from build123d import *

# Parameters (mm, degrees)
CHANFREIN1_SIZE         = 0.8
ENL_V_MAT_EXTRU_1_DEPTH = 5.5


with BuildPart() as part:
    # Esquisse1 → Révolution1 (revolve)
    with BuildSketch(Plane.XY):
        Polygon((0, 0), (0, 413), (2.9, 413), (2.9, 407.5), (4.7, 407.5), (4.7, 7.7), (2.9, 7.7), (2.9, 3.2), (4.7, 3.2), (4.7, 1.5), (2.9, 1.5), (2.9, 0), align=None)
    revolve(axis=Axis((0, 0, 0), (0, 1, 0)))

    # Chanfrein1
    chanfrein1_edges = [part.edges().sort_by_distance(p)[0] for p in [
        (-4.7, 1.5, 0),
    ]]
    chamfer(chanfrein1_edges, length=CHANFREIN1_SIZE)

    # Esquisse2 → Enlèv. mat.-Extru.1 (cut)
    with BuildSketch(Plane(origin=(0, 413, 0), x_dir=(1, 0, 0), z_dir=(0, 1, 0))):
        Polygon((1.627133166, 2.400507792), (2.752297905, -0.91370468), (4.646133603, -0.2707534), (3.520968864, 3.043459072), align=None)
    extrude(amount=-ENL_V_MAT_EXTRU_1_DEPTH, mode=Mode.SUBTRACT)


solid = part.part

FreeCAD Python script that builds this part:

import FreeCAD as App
import Part
import Sketcher

V = App.Vector
Q = App.Units.Quantity


def edges_at(feature, points):
    """Names of the edges that pass closest to the given points."""
    edges = feature.Shape.Edges
    near = lambda p: min(range(len(edges)), key=lambda i: edges[i].distToShape(Part.Vertex(*p))[0])
    return sorted({f"Edge{near(p) + 1}" for p in points})


def add_polygon(sketch, points):
    """Adds a closed chain of lines whose ends are joined by coincident constraints."""
    first, n = sketch.GeometryCount, len(points)
    for a, b in zip(points, points[1:] + points[:1]):
        sketch.addGeometry(Part.LineSegment(App.Vector(*a, 0), App.Vector(*b, 0)), False)
    for i in range(n):
        sketch.addConstraint(Sketcher.Constraint("Coincident", first + i, 2, first + (i + 1) % n, 1))

doc = App.newDocument("Part")
body = doc.addObject("PartDesign::Body", "Body")

sketch1 = body.newObject("Sketcher::SketchObject", "Sketch")
sketch1.AttachmentSupport = (doc.getObject("XY_Plane"), [""])
sketch1.MapMode = "FlatFace"
add_polygon(sketch1, [(0, 413), (0, 0), (2.9, 0), (2.9, 1.5), (4.7, 1.5), (4.7, 3.2), (2.9, 3.2), (2.9, 7.7), (4.7, 7.7), (4.7, 407.5), (2.9, 407.5), (2.9, 413)])
sketch1.addConstraint(Sketcher.Constraint("Vertical", 0))
sketch1.addConstraint(Sketcher.Constraint("Horizontal", 1))
sketch1.addConstraint(Sketcher.Constraint("Vertical", 2))
sketch1.addConstraint(Sketcher.Constraint("Horizontal", 3))
sketch1.addConstraint(Sketcher.Constraint("Vertical", 4))
sketch1.addConstraint(Sketcher.Constraint("Horizontal", 5))
sketch1.addConstraint(Sketcher.Constraint("Vertical", 6))
sketch1.addConstraint(Sketcher.Constraint("Horizontal", 7))
sketch1.addConstraint(Sketcher.Constraint("Vertical", 8))
sketch1.addConstraint(Sketcher.Constraint("Horizontal", 9))
sketch1.addConstraint(Sketcher.Constraint("Vertical", 10))
sketch1.addConstraint(Sketcher.Constraint("Horizontal", 11))
sketch1.addConstraint(Sketcher.Constraint("Coincident", 0, 2, -1, 1))
sketch1.addConstraint(Sketcher.Constraint("Vertical", 2, 2, 5, 2))
sketch1.addConstraint(Sketcher.Constraint("Vertical", 4, 2, 7, 2))
sketch1.addConstraint(Sketcher.Constraint("Vertical", 6, 2, 9, 2))
sketch1.addConstraint(Sketcher.Constraint("DistanceY", 0, 2, 0, 1, Q("413 mm")))
sketch1.addConstraint(Sketcher.Constraint("DistanceX", 1, 1, 1, 2, Q("2.9 mm")))
sketch1.addConstraint(Sketcher.Constraint("DistanceX", 3, 1, 3, 2, Q("1.8 mm")))
sketch1.addConstraint(Sketcher.Constraint("DistanceY", 2, 1, 2, 2, Q("1.5 mm")))
sketch1.addConstraint(Sketcher.Constraint("DistanceY", 4, 1, 4, 2, Q("1.7 mm")))
sketch1.addConstraint(Sketcher.Constraint("DistanceY", 6, 1, 6, 2, Q("4.5 mm")))
sketch1.addConstraint(Sketcher.Constraint("DistanceY", 8, 1, 8, 2, Q("399.8 mm")))
revolution = body.newObject("PartDesign::Revolution", "Revolution")
revolution.Profile = sketch1
revolution.ReferenceAxis = (sketch1, ["V_Axis"])
revolution.Angle = 360
doc.recompute()

chamfer = body.newObject("PartDesign::Chamfer", "Chamfer")
chamfer.Base = (revolution, edges_at(revolution, [(-4.7, 1.5, 0)]))
chamfer.Size = 0.8

sketch2 = body.newObject("Sketcher::SketchObject", "Sketch001")
sketch2.AttachmentSupport = (doc.getObject("XZ_Plane"), [""])
sketch2.MapMode = "FlatFace"
sketch2.AttachmentOffset = App.Placement(V(0, 0, -413), App.Rotation())
add_polygon(sketch2, [(1.627133, -2.400508), (2.752298, 0.913705), (4.646134, 0.270753), (3.520969, -3.043459)])
sketch2.addConstraint(Sketcher.Constraint("Perpendicular", 0, 1))
sketch2.addConstraint(Sketcher.Constraint("Perpendicular", 1, 2))
sketch2.addConstraint(Sketcher.Constraint("Perpendicular", 2, 3))
sketch2.addConstraint(Sketcher.Constraint("Distance", 1, Q("2 mm")))
sketch2.addConstraint(Sketcher.Constraint("Distance", 0, Q("3.5 mm")))
sketch2.addConstraint(Sketcher.Constraint("DistanceX", 3, 2, 1, 2, Q("3.019 mm")))
sketch2.addConstraint(Sketcher.Constraint("DistanceX", -1, 1, 2, 2, Q("3.520969 mm")))
sketch2.addConstraint(Sketcher.Constraint("DistanceY", 2, 2, -1, 1, Q("3.043459 mm")))
pocket1 = body.newObject("PartDesign::Pocket", "Pocket")
pocket1.Profile = sketch2
pocket1.Length = 5.5
pocket1.Reversed = True

doc.recompute()
